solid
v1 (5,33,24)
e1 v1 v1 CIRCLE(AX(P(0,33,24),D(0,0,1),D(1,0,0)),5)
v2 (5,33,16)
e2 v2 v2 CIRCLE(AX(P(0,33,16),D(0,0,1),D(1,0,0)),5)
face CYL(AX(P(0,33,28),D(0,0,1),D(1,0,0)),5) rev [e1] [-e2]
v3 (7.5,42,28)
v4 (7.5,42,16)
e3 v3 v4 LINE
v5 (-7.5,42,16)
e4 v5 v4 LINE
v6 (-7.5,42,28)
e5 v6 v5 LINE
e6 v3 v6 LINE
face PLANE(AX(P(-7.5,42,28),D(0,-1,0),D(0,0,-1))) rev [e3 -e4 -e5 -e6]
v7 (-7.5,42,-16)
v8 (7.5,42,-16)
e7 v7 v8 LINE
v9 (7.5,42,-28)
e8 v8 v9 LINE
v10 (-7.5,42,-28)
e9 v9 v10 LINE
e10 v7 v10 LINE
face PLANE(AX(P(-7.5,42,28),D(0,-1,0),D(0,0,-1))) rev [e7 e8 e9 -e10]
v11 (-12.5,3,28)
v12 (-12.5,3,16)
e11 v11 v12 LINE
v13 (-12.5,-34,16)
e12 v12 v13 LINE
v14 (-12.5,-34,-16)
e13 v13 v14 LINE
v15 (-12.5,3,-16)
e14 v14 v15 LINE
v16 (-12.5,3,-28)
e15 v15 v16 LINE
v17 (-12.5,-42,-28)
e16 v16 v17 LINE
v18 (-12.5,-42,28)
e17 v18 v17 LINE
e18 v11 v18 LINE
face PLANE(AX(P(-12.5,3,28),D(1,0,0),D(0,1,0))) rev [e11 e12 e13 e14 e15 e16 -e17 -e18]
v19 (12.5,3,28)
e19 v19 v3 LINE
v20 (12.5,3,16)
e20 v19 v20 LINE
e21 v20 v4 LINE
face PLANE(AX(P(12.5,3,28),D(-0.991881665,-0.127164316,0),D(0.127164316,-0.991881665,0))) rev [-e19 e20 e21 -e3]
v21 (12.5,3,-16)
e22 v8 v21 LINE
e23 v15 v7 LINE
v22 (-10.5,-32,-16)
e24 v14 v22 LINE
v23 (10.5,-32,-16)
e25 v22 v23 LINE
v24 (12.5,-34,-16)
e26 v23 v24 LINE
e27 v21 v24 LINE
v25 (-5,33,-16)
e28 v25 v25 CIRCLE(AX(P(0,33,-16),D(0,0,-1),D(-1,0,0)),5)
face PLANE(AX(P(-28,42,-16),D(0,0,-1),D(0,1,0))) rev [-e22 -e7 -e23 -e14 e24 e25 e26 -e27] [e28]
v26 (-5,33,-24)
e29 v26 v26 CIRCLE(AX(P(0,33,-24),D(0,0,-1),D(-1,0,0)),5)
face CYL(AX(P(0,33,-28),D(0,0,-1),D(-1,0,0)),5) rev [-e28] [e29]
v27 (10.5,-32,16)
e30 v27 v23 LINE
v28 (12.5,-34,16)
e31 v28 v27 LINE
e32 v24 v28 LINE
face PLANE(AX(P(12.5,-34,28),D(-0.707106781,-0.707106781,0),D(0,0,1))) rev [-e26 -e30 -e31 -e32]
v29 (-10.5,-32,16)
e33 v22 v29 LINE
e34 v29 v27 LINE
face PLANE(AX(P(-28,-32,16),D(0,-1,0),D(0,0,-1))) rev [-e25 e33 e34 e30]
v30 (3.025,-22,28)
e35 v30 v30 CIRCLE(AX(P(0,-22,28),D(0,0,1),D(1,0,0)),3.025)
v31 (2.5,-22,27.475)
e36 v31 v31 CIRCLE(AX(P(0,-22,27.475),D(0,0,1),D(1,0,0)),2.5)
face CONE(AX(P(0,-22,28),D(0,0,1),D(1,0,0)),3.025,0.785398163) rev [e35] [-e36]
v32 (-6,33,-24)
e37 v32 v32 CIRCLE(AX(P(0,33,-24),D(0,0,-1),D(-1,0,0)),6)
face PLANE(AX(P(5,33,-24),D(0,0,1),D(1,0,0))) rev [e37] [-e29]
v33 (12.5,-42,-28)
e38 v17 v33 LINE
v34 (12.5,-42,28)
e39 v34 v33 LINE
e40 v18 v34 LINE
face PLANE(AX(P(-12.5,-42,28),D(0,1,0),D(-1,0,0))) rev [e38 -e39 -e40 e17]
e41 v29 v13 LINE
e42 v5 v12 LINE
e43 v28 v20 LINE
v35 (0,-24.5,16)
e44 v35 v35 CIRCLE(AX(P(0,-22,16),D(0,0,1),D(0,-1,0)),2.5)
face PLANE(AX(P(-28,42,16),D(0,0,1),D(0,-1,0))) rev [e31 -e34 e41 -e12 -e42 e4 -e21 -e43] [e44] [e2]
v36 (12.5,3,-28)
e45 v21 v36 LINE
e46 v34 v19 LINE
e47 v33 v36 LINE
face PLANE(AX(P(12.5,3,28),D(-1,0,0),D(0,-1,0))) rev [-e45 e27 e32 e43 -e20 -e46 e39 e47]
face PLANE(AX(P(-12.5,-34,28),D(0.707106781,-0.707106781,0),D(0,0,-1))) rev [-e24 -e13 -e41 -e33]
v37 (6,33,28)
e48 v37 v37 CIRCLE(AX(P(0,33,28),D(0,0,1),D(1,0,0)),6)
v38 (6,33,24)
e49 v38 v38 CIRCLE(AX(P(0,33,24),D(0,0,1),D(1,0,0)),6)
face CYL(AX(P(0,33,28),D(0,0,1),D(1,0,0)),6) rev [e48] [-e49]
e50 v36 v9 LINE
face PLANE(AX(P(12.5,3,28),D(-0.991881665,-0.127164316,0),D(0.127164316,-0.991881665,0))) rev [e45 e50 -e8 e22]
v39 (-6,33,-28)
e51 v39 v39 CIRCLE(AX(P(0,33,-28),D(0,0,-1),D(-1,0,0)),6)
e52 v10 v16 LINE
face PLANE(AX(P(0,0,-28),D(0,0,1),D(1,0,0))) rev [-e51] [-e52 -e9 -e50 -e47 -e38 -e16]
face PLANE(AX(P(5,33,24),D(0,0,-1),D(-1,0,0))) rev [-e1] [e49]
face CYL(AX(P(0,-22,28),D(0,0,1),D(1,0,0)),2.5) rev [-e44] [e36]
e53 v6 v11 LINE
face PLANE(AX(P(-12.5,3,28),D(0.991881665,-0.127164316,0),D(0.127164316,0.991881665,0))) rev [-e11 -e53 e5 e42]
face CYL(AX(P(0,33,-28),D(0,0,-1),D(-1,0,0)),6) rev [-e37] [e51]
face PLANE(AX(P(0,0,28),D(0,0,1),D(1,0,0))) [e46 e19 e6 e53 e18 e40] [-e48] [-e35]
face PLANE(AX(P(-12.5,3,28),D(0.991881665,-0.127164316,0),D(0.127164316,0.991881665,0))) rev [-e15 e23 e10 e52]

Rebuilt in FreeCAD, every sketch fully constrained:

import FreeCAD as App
import Part
import Sketcher
from FreeCAD import Vector
Q = App.Units.Quantity


def edges_at(feature, points):
    """Names of the edges that pass closest to the given points."""
    edges = feature.Shape.Edges
    near = lambda p: min(range(len(edges)), key=lambda i: edges[i].distToShape(Part.Vertex(*p))[0])
    return sorted({f"Edge{near(p) + 1}" for p in points})


def add_polygon(sketch, points):
    """Adds a closed chain of lines whose ends are joined by coincident constraints."""
    first, n = sketch.GeometryCount, len(points)
    for a, b in zip(points, points[1:] + points[:1]):
        sketch.addGeometry(Part.LineSegment(App.Vector(*a, 0), App.Vector(*b, 0)), False)
    for i in range(n):
        sketch.addConstraint(Sketcher.Constraint("Coincident", first + i, 2, first + (i + 1) % n, 1))

doc = App.newDocument("Part")
params = doc.addObject("Spreadsheet::Sheet", "Params")
for row, (alias, value) in enumerate([
    ("sketch1_width", "15 mm"),
    ("sketch1_width2", "25 mm"),
    ("sketch1_height", "45 mm"),
    ("pad1_length", "56 mm"),
    ("sketch2_width", "74 mm"),
    ("sketch2_height", "32 mm"),
    ("pocket1_length", "56 mm"),
    ("chamfer_size", "2 mm"),
    ("sketch3_diameter", "10 mm"),
    ("hole_diameter", "10 mm"),
    ("hole_depth", "12 mm"),
    ("hole_cbore_diameter", "12 mm"),
    ("hole_cbore_depth", "4 mm"),
    ("sketch4_diameter", "5 mm"),
    ("hole2_diameter", "5 mm"),
    ("hole2_depth", "27 mm"),
    ("hole2_csink_diameter", "6.05 mm"),
], start=1):
    params.set(f"A{row}", alias)
    params.set(f"B{row}", "=" + value)
    params.setAlias(f"B{row}", alias)

body = doc.addObject("PartDesign::Body", "Body")

sketch1 = body.newObject("Sketcher::SketchObject", "Sketch")
sketch1.AttachmentSupport = (doc.getObject("XY_Plane"), [""])
sketch1.MapMode = "FlatFace"
add_polygon(sketch1, [(8, 42), (-8, 42), (-12, 3), (-12, -42), (12, -42), (12, 3)])
sketch1.addConstraint(Sketcher.Constraint("Horizontal", 0))
sketch1.addConstraint(Sketcher.Constraint("Vertical", 2))
sketch1.addConstraint(Sketcher.Constraint("Horizontal", 3))
sketch1.addConstraint(Sketcher.Constraint("Vertical", 4))
sketch1.addConstraint(Sketcher.Constraint("Symmetric", 1, 2, 4, 2, -2))
sketch1.addConstraint(Sketcher.Constraint("Equal", 1, 5))
sketch1.addConstraint(Sketcher.Constraint("DistanceX", 0, 2, 0, 1, Q("15 mm")))
sketch1.addConstraint(Sketcher.Constraint("DistanceX", 3, 1, 3, 2, Q("25 mm")))
sketch1.addConstraint(Sketcher.Constraint("DistanceY", 2, 2, 2, 1, Q("45 mm")))
sketch1.addConstraint(Sketcher.Constraint("DistanceY", -1, 1, 0, 2, Q("42 mm")))
sketch1.addConstraint(Sketcher.Constraint("DistanceY", -1, 1, 1, 2, Q("3 mm")))
sketch1.setExpression("Constraints[12]", "Params.sketch1_width")
sketch1.setExpression("Constraints[13]", "Params.sketch1_width2")
sketch1.setExpression("Constraints[14]", "Params.sketch1_height")
pad1 = body.newObject("PartDesign::Pad", "Pad")
pad1.Profile = sketch1
pad1.setExpression("Length", "Params.pad1_length")
pad1.Midplane = True

sketch2 = body.newObject("Sketcher::SketchObject", "Sketch001")
sketch2.AttachmentSupport = (doc.getObject("YZ_Plane"), [""])
sketch2.MapMode = "FlatFace"
add_polygon(sketch2, [(42, 16), (-32, 16), (-32, -16), (42, -16)])
sketch2.addConstraint(Sketcher.Constraint("Horizontal", 0))
sketch2.addConstraint(Sketcher.Constraint("Vertical", 1))
sketch2.addConstraint(Sketcher.Constraint("Horizontal", 2))
sketch2.addConstraint(Sketcher.Constraint("Vertical", 3))
sketch2.addConstraint(Sketcher.Constraint("DistanceX", 0, 2, 0, 1, Q("74 mm")))
sketch2.addConstraint(Sketcher.Constraint("DistanceY", 1, 2, 1, 1, Q("32 mm")))
sketch2.addConstraint(Sketcher.Constraint("DistanceX", 0, 2, -1, 1, Q("32 mm")))
sketch2.addConstraint(Sketcher.Constraint("DistanceY", -1, 1, 0, 2, Q("16 mm")))
sketch2.setExpression("Constraints[8]", "Params.sketch2_width")
sketch2.setExpression("Constraints[9]", "Params.sketch2_height")
pocket1 = body.newObject("PartDesign::Pocket", "Pocket")
pocket1.Profile = sketch2
pocket1.setExpression("Length", "Params.pocket1_length")
pocket1.Midplane = True
doc.recompute()

chamfer = body.newObject("PartDesign::Chamfer", "Chamfer")
chamfer.Base = (pocket1, edges_at(pocket1, [(-12.5, -32, 0), (12.5, -32, 0)]))
chamfer.setExpression("Size", "Params.chamfer_size")

sketch3 = body.newObject("Sketcher::SketchObject", "Sketch002")
sketch3.AttachmentSupport = (doc.getObject("XY_Plane"), [""])
sketch3.MapMode = "FlatFace"
sketch3.AttachmentOffset = App.Placement(Vector(0, 0, 28), App.Rotation())
sketch3.addGeometry(Part.Circle(Vector(0, 33, 0), Vector(0, 0, 1), 5), False)
sketch3.addConstraint(Sketcher.Constraint("PointOnObject", 0, 3, -2))
sketch3.addConstraint(Sketcher.Constraint("Diameter", 0, Q("10 mm")))
sketch3.addConstraint(Sketcher.Constraint("DistanceY", -1, 1, 0, 3, Q("33 mm")))
sketch3.setExpression("Constraints[1]", "Params.sketch3_diameter")
doc.recompute()
hole = body.newObject("PartDesign::Hole", "Hole")
hole.Profile = sketch3
hole.ThreadType = "None"
hole.setExpression("Diameter", "Params.hole_diameter")
hole.DepthType = "Dimension"
hole.setExpression("Depth", "Params.hole_depth")
hole.DrillPoint = "Flat"
hole.HoleCutType = "Counterbore"
hole.setExpression("HoleCutDiameter", "Params.hole_cbore_diameter")
hole.setExpression("HoleCutDepth", "Params.hole_cbore_depth")
doc.recompute()

mirrored = body.newObject("PartDesign::Mirrored", "Mirrored")
mirrored.Originals = [hole]
mirrored.MirrorPlane = (doc.getObject("XY_Plane"), [""])
body.Tip = mirrored

sketch4 = body.newObject("Sketcher::SketchObject", "Sketch003")
sketch4.AttachmentSupport = (doc.getObject("XY_Plane"), [""])
sketch4.MapMode = "FlatFace"
sketch4.AttachmentOffset = App.Placement(Vector(0, 0, 28), App.Rotation())
sketch4.addGeometry(Part.Circle(Vector(0, -22, 0), Vector(0, 0, 1), 2.5), False)
sketch4.addConstraint(Sketcher.Constraint("PointOnObject", 0, 3, -2))
sketch4.addConstraint(Sketcher.Constraint("Diameter", 0, Q("5 mm")))
sketch4.addConstraint(Sketcher.Constraint("DistanceY", 0, 3, -1, 1, Q("22 mm")))
sketch4.setExpression("Constraints[1]", "Params.sketch4_diameter")
doc.recompute()
hole2 = body.newObject("PartDesign::Hole", "Hole001")
hole2.Profile = sketch4
hole2.ThreadType = "None"
hole2.setExpression("Diameter", "Params.hole2_diameter")
hole2.DepthType = "Dimension"
hole2.setExpression("Depth", "Params.hole2_depth")
hole2.DrillPoint = "Angled"
hole2.DrillPointAngle = 118
hole2.HoleCutType = "Countersink"
hole2.setExpression("HoleCutDiameter", "Params.hole2_csink_diameter")
hole2.HoleCutCountersinkAngle = 90

doc.recompute()
